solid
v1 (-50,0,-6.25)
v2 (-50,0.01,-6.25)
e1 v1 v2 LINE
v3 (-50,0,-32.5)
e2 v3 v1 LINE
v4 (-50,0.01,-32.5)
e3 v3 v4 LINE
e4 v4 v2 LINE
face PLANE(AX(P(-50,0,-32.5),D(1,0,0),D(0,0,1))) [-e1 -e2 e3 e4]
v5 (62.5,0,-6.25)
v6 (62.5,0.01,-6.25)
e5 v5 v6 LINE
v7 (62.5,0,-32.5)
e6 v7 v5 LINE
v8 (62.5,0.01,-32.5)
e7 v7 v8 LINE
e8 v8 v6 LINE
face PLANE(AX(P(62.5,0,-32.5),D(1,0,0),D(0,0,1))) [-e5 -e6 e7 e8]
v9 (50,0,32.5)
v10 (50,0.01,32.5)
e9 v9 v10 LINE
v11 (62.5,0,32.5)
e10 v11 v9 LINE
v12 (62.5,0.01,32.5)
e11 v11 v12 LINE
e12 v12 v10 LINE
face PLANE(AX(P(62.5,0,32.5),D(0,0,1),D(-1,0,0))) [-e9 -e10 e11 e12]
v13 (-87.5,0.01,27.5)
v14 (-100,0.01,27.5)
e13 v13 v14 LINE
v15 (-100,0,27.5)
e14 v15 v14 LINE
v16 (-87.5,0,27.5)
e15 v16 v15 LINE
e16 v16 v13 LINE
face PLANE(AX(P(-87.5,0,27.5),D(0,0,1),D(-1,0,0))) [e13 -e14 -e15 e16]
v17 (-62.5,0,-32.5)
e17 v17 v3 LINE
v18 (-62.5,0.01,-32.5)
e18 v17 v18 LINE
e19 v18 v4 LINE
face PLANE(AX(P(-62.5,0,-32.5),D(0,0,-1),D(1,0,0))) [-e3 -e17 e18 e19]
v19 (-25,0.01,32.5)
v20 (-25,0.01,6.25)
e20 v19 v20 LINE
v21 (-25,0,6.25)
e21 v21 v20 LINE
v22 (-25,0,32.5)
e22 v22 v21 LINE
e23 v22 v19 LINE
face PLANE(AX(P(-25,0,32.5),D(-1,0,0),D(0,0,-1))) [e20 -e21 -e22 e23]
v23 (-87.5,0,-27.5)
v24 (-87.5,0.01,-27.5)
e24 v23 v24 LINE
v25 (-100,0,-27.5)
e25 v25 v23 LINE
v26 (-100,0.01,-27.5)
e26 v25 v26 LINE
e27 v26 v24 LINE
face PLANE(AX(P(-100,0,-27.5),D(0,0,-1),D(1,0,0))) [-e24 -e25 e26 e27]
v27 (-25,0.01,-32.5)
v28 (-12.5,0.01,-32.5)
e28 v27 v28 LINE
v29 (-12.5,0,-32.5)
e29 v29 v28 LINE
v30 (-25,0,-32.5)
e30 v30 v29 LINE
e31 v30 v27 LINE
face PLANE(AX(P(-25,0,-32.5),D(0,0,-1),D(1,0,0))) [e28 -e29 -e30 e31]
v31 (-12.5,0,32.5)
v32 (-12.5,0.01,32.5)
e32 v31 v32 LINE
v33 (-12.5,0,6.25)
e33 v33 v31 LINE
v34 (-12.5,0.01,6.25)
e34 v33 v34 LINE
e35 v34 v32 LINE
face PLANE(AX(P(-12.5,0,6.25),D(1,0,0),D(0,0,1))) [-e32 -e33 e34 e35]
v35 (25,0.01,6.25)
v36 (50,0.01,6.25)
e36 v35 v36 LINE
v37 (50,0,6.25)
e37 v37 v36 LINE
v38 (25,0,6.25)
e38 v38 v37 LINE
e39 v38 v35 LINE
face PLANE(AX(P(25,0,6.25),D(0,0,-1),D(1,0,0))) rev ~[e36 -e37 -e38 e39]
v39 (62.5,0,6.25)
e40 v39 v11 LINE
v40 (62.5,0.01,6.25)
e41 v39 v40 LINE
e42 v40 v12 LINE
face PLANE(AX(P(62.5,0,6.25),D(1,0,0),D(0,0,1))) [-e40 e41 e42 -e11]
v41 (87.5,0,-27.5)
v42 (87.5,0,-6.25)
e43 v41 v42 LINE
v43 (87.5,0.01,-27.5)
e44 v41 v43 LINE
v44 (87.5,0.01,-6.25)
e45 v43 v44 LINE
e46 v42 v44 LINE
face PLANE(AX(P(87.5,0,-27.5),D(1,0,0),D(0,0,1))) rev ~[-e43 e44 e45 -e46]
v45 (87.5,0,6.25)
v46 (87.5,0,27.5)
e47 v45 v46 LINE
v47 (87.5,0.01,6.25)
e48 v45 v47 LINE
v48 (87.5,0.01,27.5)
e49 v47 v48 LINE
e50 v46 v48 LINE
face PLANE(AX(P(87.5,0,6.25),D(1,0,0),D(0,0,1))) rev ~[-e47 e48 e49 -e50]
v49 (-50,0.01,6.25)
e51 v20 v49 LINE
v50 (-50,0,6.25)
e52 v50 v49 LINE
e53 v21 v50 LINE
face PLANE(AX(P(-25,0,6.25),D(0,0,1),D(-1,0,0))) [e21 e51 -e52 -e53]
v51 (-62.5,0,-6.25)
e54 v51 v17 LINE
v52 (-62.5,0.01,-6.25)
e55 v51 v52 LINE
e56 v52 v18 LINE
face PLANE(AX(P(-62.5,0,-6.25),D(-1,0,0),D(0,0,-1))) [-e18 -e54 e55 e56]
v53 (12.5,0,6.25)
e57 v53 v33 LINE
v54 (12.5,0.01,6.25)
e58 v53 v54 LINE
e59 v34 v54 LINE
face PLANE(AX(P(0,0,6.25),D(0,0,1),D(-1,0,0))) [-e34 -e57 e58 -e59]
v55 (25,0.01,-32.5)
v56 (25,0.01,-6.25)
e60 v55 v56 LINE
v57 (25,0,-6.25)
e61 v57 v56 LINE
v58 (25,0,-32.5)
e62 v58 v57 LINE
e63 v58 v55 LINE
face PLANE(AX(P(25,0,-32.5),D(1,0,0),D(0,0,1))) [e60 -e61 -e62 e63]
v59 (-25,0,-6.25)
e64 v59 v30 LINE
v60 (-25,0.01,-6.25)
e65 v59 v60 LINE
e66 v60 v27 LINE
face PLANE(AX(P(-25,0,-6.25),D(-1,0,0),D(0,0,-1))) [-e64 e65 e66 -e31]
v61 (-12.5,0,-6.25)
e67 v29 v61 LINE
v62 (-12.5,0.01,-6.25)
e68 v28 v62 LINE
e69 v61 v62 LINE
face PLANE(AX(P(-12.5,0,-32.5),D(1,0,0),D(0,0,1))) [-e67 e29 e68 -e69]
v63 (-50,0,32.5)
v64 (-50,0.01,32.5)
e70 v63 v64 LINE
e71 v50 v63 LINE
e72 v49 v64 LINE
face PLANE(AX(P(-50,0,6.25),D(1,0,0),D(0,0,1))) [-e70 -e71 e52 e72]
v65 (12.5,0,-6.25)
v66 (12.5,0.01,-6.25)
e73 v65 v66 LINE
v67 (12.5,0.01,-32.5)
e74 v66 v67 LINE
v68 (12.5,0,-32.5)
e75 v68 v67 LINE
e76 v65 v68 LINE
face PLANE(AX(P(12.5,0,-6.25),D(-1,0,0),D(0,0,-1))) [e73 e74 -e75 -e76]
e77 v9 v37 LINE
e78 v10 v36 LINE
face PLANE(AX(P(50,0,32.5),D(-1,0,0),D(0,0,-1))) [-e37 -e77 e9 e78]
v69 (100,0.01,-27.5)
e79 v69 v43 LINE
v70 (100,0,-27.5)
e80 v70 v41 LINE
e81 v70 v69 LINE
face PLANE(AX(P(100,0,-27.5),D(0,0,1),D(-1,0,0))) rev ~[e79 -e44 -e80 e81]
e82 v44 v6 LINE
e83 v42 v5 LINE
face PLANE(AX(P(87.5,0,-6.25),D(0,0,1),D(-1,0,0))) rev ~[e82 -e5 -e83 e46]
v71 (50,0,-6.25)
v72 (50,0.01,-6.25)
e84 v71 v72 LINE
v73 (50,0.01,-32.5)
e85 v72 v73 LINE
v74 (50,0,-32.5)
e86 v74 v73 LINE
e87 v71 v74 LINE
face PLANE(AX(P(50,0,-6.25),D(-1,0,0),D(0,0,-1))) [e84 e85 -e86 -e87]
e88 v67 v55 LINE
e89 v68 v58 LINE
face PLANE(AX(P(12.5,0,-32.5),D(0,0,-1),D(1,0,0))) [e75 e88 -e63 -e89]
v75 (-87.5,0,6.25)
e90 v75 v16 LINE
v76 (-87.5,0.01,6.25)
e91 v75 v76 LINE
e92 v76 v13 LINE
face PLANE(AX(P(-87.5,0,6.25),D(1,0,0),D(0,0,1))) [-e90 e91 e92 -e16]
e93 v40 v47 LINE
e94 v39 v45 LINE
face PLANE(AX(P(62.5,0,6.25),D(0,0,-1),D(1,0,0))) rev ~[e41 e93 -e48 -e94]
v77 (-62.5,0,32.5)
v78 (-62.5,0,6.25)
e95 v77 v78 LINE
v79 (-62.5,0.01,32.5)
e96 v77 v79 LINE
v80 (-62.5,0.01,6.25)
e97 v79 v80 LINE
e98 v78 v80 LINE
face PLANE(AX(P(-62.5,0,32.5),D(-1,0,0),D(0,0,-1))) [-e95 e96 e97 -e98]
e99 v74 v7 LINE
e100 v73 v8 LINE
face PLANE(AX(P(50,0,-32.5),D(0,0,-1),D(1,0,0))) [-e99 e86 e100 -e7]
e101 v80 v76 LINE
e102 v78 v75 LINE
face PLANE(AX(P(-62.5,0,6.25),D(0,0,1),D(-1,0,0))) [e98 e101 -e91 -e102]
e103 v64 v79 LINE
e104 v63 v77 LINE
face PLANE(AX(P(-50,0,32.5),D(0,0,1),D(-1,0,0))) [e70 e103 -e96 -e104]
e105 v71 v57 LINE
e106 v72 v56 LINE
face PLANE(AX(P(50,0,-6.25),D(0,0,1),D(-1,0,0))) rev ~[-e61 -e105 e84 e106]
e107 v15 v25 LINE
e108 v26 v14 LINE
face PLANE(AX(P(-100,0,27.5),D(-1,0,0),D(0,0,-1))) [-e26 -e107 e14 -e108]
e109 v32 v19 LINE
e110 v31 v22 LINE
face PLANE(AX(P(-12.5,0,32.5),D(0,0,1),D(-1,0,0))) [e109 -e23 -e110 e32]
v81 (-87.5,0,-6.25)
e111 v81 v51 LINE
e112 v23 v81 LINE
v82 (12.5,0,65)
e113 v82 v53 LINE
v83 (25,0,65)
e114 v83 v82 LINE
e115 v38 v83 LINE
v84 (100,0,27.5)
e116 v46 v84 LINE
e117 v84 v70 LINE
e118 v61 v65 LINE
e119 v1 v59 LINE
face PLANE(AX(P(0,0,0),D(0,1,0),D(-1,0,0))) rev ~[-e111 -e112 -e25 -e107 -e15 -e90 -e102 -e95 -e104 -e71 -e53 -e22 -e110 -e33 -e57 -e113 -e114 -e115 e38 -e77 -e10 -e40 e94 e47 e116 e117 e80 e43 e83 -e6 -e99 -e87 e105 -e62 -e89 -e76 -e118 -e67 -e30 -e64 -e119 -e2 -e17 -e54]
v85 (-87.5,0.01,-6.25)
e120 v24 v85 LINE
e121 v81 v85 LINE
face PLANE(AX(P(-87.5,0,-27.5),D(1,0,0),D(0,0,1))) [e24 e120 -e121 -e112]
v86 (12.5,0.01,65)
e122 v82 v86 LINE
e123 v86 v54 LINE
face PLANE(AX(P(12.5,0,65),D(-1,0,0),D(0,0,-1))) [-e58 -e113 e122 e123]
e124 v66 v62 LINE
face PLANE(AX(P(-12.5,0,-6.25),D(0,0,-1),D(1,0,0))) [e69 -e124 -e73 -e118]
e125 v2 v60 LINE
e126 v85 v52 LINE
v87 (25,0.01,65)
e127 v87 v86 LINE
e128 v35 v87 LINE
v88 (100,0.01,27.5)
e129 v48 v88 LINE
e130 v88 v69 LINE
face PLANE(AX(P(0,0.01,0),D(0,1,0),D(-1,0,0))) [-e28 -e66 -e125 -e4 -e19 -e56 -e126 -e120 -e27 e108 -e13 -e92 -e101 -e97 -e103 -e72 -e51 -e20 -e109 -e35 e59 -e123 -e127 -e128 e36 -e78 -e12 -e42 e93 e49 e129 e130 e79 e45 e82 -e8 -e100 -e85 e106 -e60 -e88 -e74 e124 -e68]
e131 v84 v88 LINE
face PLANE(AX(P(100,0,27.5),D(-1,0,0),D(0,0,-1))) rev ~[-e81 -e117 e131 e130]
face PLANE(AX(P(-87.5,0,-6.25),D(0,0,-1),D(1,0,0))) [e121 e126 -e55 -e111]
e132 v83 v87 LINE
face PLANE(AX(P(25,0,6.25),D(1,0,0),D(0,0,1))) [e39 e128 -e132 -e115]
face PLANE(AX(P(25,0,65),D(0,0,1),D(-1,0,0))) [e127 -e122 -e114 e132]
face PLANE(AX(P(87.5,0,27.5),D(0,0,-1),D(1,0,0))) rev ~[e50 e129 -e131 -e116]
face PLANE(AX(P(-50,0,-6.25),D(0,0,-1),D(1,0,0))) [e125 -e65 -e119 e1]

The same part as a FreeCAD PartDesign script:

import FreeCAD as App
import Part
import Sketcher
from FreeCAD import Vector

doc = App.newDocument("Part")
params = doc.addObject("Spreadsheet::Sheet", "Params")
for row, (alias, value) in enumerate([
    ("sketch1_width", "25 mm"),
    ("sketch1_height", "55 mm"),
    ("sketch1_width2", "12.5 mm"),
    ("pad1_length", "0.01 mm"),
], start=1):
    params.set(f"A{row}", alias)
    params.set(f"B{row}", "=" + value)
    params.setAlias(f"B{row}", alias)

body = doc.addObject("PartDesign::Body", "Body")

sketch1 = body.newObject("Sketcher::SketchObject", "Sketch")
sketch1.AttachmentSupport = (doc.getObject("XZ_Plane"), [""])
sketch1.MapMode = "FlatFace"
sketch1.addGeometry([
    Part.LineSegment(Vector(-87.5, 27.5, 0), Vector(-87.5, 6.25, 0)),
    Part.LineSegment(Vector(-87.5, 6.25, 0), Vector(-62.5, 6.25, 0)),
    Part.LineSegment(Vector(-62.5, 6.25, 0), Vector(-62.5, 32.5, 0)),
    Part.LineSegment(Vector(-62.5, 32.5, 0), Vector(-50, 32.5, 0)),
    Part.LineSegment(Vector(-50, 32.5, 0), Vector(-50, 6.25, 0)),
    Part.LineSegment(Vector(-50, 6.25, 0), Vector(-25, 6.25, 0)),
    Part.LineSegment(Vector(-25, 6.25, 0), Vector(-25, 32.5, 0)),
    Part.LineSegment(Vector(-25, 32.5, 0), Vector(-12.5, 32.5, 0)),
    Part.LineSegment(Vector(-12.5, 32.5, 0), Vector(-12.5, 6.25, 0)),
    Part.LineSegment(Vector(-12.5, 6.25, 0), Vector(12.5, 6.25, 0)),
    Part.LineSegment(Vector(12.5, 6.25, 0), Vector(12.5, 65, 0)),
    Part.LineSegment(Vector(12.5, 65, 0), Vector(25, 65, 0)),
    Part.LineSegment(Vector(25, 65, 0), Vector(25, 6.25, 0)),
    Part.LineSegment(Vector(25, 6.25, 0), Vector(50, 6.25, 0)),
    Part.LineSegment(Vector(50, 6.25, 0), Vector(50, 32.5, 0)),
    Part.LineSegment(Vector(50, 32.5, 0), Vector(62.5, 32.5, 0)),
    Part.LineSegment(Vector(62.5, 32.5, 0), Vector(62.5, 6.25, 0)),
    Part.LineSegment(Vector(62.5, 6.25, 0), Vector(87.5, 6.25, 0)),
    Part.LineSegment(Vector(87.5, 6.25, 0), Vector(87.5, 27.5, 0)),
    Part.LineSegment(Vector(87.5, 27.5, 0), Vector(100, 27.5, 0)),
    Part.LineSegment(Vector(100, 27.5, 0), Vector(100, -27.5, 0)),
    Part.LineSegment(Vector(100, -27.5, 0), Vector(87.5, -27.5, 0)),
    Part.LineSegment(Vector(87.5, -27.5, 0), Vector(87.5, -6.25, 0)),
    Part.LineSegment(Vector(87.5, -6.25, 0), Vector(62.5, -6.25, 0)),
    Part.LineSegment(Vector(62.5, -6.25, 0), Vector(62.5, -32.5, 0)),
    Part.LineSegment(Vector(62.5, -32.5, 0), Vector(50, -32.5, 0)),
    Part.LineSegment(Vector(50, -32.5, 0), Vector(50, -6.25, 0)),
    Part.LineSegment(Vector(50, -6.25, 0), Vector(25, -6.25, 0)),
    Part.LineSegment(Vector(25, -6.25, 0), Vector(25, -32.5, 0)),
    Part.LineSegment(Vector(25, -32.5, 0), Vector(12.5, -32.5, 0)),
    Part.LineSegment(Vector(12.5, -32.5, 0), Vector(12.5, -6.25, 0)),
    Part.LineSegment(Vector(12.5, -6.25, 0), Vector(-12.5, -6.25, 0)),
    Part.LineSegment(Vector(-12.5, -6.25, 0), Vector(-12.5, -32.5, 0)),
    Part.LineSegment(Vector(-12.5, -32.5, 0), Vector(-25, -32.5, 0)),
    Part.LineSegment(Vector(-25, -32.5, 0), Vector(-25, -6.25, 0)),
    Part.LineSegment(Vector(-25, -6.25, 0), Vector(-50, -6.25, 0)),
    Part.LineSegment(Vector(-50, -6.25, 0), Vector(-50, -32.5, 0)),
    Part.LineSegment(Vector(-50, -32.5, 0), Vector(-62.5, -32.5, 0)),
    Part.LineSegment(Vector(-62.5, -32.5, 0), Vector(-62.5, -6.25, 0)),
    Part.LineSegment(Vector(-62.5, -6.25, 0), Vector(-87.5, -6.25, 0)),
    Part.LineSegment(Vector(-87.5, -6.25, 0), Vector(-87.5, -27.5, 0)),
    Part.LineSegment(Vector(-87.5, -27.5, 0), Vector(-100, -27.5, 0)),
    Part.LineSegment(Vector(-100, -27.5, 0), Vector(-100, 27.5, 0)),
    Part.LineSegment(Vector(-100, 27.5, 0), Vector(-87.5, 27.5, 0)),
], False)
sketch1.addConstraint([
    Sketcher.Constraint("Coincident", 0, 2, 1, 1),
    Sketcher.Constraint("Coincident", 1, 2, 2, 1),
    Sketcher.Constraint("Coincident", 2, 2, 3, 1),
    Sketcher.Constraint("Coincident", 3, 2, 4, 1),
    Sketcher.Constraint("Coincident", 4, 2, 5, 1),
    Sketcher.Constraint("Coincident", 5, 2, 6, 1),
    Sketcher.Constraint("Coincident", 6, 2, 7, 1),
    Sketcher.Constraint("Coincident", 7, 2, 8, 1),
    Sketcher.Constraint("Coincident", 8, 2, 9, 1),
    Sketcher.Constraint("Coincident", 9, 2, 10, 1),
    Sketcher.Constraint("Coincident", 10, 2, 11, 1),
    Sketcher.Constraint("Coincident", 11, 2, 12, 1),
    Sketcher.Constraint("Coincident", 12, 2, 13, 1),
    Sketcher.Constraint("Coincident", 13, 2, 14, 1),
    Sketcher.Constraint("Coincident", 14, 2, 15, 1),
    Sketcher.Constraint("Coincident", 15, 2, 16, 1),
    Sketcher.Constraint("Coincident", 16, 2, 17, 1),
    Sketcher.Constraint("Coincident", 17, 2, 18, 1),
    Sketcher.Constraint("Coincident", 18, 2, 19, 1),
    Sketcher.Constraint("Coincident", 19, 2, 20, 1),
    Sketcher.Constraint("Coincident", 20, 2, 21, 1),
    Sketcher.Constraint("Coincident", 21, 2, 22, 1),
    Sketcher.Constraint("Coincident", 22, 2, 23, 1),
    Sketcher.Constraint("Coincident", 23, 2, 24, 1),
    Sketcher.Constraint("Coincident", 24, 2, 25, 1),
    Sketcher.Constraint("Coincident", 25, 2, 26, 1),
    Sketcher.Constraint("Coincident", 26, 2, 27, 1),
    Sketcher.Constraint("Coincident", 27, 2, 28, 1),
    Sketcher.Constraint("Coincident", 28, 2, 29, 1),
    Sketcher.Constraint("Coincident", 29, 2, 30, 1),
    Sketcher.Constraint("Coincident", 30, 2, 31, 1),
    Sketcher.Constraint("Coincident", 31, 2, 32, 1),
    Sketcher.Constraint("Coincident", 32, 2, 33, 1),
    Sketcher.Constraint("Coincident", 33, 2, 34, 1),
    Sketcher.Constraint("Coincident", 34, 2, 35, 1),
    Sketcher.Constraint("Coincident", 35, 2, 36, 1),
    Sketcher.Constraint("Coincident", 36, 2, 37, 1),
    Sketcher.Constraint("Coincident", 37, 2, 38, 1),
    Sketcher.Constraint("Coincident", 38, 2, 39, 1),
    Sketcher.Constraint("Coincident", 39, 2, 40, 1),
    Sketcher.Constraint("Coincident", 40, 2, 41, 1),
    Sketcher.Constraint("Coincident", 41, 2, 42, 1),
    Sketcher.Constraint("Coincident", 42, 2, 43, 1),
    Sketcher.Constraint("Coincident", 43, 2, 0, 1),
    Sketcher.Constraint("Vertical", 0),
    Sketcher.Constraint("Horizontal", 1),
    Sketcher.Constraint("Vertical", 2),
    Sketcher.Constraint("Horizontal", 3),
    Sketcher.Constraint("Vertical", 4),
    Sketcher.Constraint("Horizontal", 5),
    Sketcher.Constraint("Vertical", 6),
    Sketcher.Constraint("Horizontal", 7),
    Sketcher.Constraint("Vertical", 8),
    Sketcher.Constraint("Horizontal", 9),
    Sketcher.Constraint("Vertical", 10),
    Sketcher.Constraint("Horizontal", 11),
    Sketcher.Constraint("Vertical", 12),
    Sketcher.Constraint("Horizontal", 13),
    Sketcher.Constraint("Vertical", 14),
    Sketcher.Constraint("Horizontal", 15),
    Sketcher.Constraint("Vertical", 16),
    Sketcher.Constraint("Horizontal", 17),
    Sketcher.Constraint("Vertical", 18),
    Sketcher.Constraint("Horizontal", 19),
    Sketcher.Constraint("Vertical", 20),
    Sketcher.Constraint("Horizontal", 21),
    Sketcher.Constraint("Vertical", 22),
    Sketcher.Constraint("Horizontal", 23),
    Sketcher.Constraint("Vertical", 24),
    Sketcher.Constraint("Horizontal", 25),
    Sketcher.Constraint("Vertical", 26),
    Sketcher.Constraint("Horizontal", 27),
    Sketcher.Constraint("Vertical", 28),
    Sketcher.Constraint("Horizontal", 29),
    Sketcher.Constraint("Vertical", 30),
    Sketcher.Constraint("Horizontal", 31),
    Sketcher.Constraint("Vertical", 32),
    Sketcher.Constraint("Horizontal", 33),
    Sketcher.Constraint("Vertical", 34),
    Sketcher.Constraint("Horizontal", 35),
    Sketcher.Constraint("Vertical", 36),
    Sketcher.Constraint("Horizontal", 37),
    Sketcher.Constraint("Vertical", 38),
    Sketcher.Constraint("Horizontal", 39),
    Sketcher.Constraint("Vertical", 40),
    Sketcher.Constraint("Horizontal", 41),
    Sketcher.Constraint("Vertical", 42),
    Sketcher.Constraint("Horizontal", 43),
    Sketcher.Constraint("Symmetric", 0, 2, 22, 2, -1, 1),
    Sketcher.Constraint("Symmetric", 2, 2, 24, 2, -1, 1),
    Sketcher.Constraint("Symmetric", 4, 2, 26, 2, -1, 1),
    Sketcher.Constraint("Symmetric", 6, 2, 28, 2, -1, 1),
    Sketcher.Constraint("Symmetric", 8, 2, 30, 2, -1, 1),
    Sketcher.Constraint("Symmetric", 12, 2, 34, 2, -1, 1),
    Sketcher.Constraint("Symmetric", 14, 2, 36, 2, -1, 1),
    Sketcher.Constraint("Symmetric", 16, 2, 38, 2, -1, 1),
    Sketcher.Constraint("Symmetric", 18, 2, 40, 2, -1, 1),
    Sketcher.Constraint("Symmetric", 20, 2, 42, 2, -1, 1),
    Sketcher.Constraint("Symmetric", 5, 2, 12, 2, -2),
    Sketcher.Constraint("Symmetric", 3, 2, 14, 2, -2),
    Sketcher.Constraint("Symmetric", 1, 2, 16, 2, -2),
    Sketcher.Constraint("Symmetric", 29, 2, 32, 2, -2),
    Sketcher.Constraint("Symmetric", 21, 2, 40, 2, -2),
    Sketcher.Constraint("Horizontal", 1, 2, 4, 2),
    Sketcher.Constraint("Horizontal", 3, 2, 6, 2),
    Sketcher.Constraint("Horizontal", 5, 2, 8, 2),
    Sketcher.Constraint("Vertical", 10, 2, 29, 2),
    Sketcher.Constraint("Equal", 1, 5),
    Sketcher.Constraint("Equal", 3, 7),
    Sketcher.Constraint("Equal", 5, 9),
    Sketcher.Constraint("Equal", 15, 19),
    Sketcher.Constraint("DistanceX", 1, 1, 1, 2, 25.0),
    Sketcher.Constraint("DistanceY", 20, 2, 20, 1, 55.0),
    Sketcher.Constraint("DistanceX", 3, 1, 3, 2, 12.5),
    Sketcher.Constraint("DistanceY", -1, 1, 10, 2, 65.0),
    Sketcher.Constraint("DistanceY", 22, 2, 17, 2, 12.5),
    Sketcher.Constraint("DistanceY", 18, 2, 15, 2, 5.0),
])
sketch1.setExpression("Constraints[111]", "Params.sketch1_width")
sketch1.setExpression("Constraints[112]", "Params.sketch1_height")
sketch1.setExpression("Constraints[113]", "Params.sketch1_width2")
pad1 = body.newObject("PartDesign::Pad", "Pad")
pad1.Profile = sketch1
pad1.setExpression("Length", "Params.pad1_length")
pad1.Reversed = True

doc.recompute()
